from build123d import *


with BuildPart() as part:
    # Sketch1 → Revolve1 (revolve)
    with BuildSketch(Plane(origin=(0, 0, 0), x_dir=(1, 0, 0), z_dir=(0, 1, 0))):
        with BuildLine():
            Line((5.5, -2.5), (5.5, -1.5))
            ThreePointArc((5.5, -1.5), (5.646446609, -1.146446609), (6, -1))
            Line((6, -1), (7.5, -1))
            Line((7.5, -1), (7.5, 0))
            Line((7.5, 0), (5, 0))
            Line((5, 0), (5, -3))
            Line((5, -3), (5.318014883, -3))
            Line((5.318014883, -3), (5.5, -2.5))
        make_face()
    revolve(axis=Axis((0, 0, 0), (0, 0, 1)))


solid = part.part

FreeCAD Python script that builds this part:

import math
import FreeCAD as App
import Part
import Sketcher

V = App.Vector
Q = App.Units.Quantity

doc = App.newDocument("Part")
body = doc.addObject("PartDesign::Body", "Body")

# Sketch on XZ plane
sketch1 = body.newObject("Sketcher::SketchObject", "Sketch")
sketch1.AttachmentSupport = (doc.getObject("XZ_Plane"), [""])
sketch1.MapMode = "FlatFace"
sketch1.addGeometry([
    Part.LineSegment(V(5.5, 2.5, 0), V(5.5, 1.5, 0)),  # 0
    Part.ArcOfCircle(Part.Circle(V(6, 1.5, 0), V(0, 0, 1), 0.5), math.radians(180), math.radians(270)),  # 1
    Part.LineSegment(V(6, 1, 0), V(7.5, 1, 0)),  # 2
    Part.LineSegment(V(7.5, 1, 0), V(7.5, 0, 0)),  # 3
    Part.LineSegment(V(7.5, 0, 0), V(5, 0, 0)),  # 4
    Part.LineSegment(V(5, 0, 0), V(5, 3, 0)),  # 5
    Part.LineSegment(V(5, 3, 0), V(5.32, 3, 0)),  # 6
    Part.LineSegment(V(5.32, 3, 0), V(5.5, 2.5, 0)),  # 7
], False)
sketch1.addConstraint([
    Sketcher.Constraint("Tangent", 0, 2, 1, 1),
    Sketcher.Constraint("Tangent", 1, 2, 2, 1),
    Sketcher.Constraint("Coincident", 2, 2, 3, 1),
    Sketcher.Constraint("Coincident", 3, 2, 4, 1),
    Sketcher.Constraint("Coincident", 4, 2, 5, 1),
    Sketcher.Constraint("Coincident", 5, 2, 6, 1),
    Sketcher.Constraint("Coincident", 6, 2, 7, 1),
    Sketcher.Constraint("Coincident", 7, 2, 0, 1),
    Sketcher.Constraint("Vertical", 0),
    Sketcher.Constraint("Horizontal", 2),
    Sketcher.Constraint("Vertical", 3),
    Sketcher.Constraint("Horizontal", 4),
    Sketcher.Constraint("Vertical", 5),
    Sketcher.Constraint("Horizontal", 6),
    Sketcher.Constraint("PointOnObject", 3, 2, -1),
    Sketcher.Constraint("Equal", 0, 3),
    Sketcher.Constraint("Radius", 1, Q("0.5 mm")),
    Sketcher.Constraint("DistanceY", 0, 2, 0, 1, Q("1 mm")),
    Sketcher.Constraint("DistanceY", 5, 1, 5, 2, Q("3 mm")),
    Sketcher.Constraint("Angle", 7, Q("-70 deg")),
    Sketcher.Constraint("DistanceX", 2, 1, 2, 2, Q("1.5 mm")),
    Sketcher.Constraint("DistanceX", 4, 2, 4, 1, Q("2.5 mm")),
    Sketcher.Constraint("DistanceX", -1, 1, 1, 3, Q("6 mm")),
])
revolution = body.newObject("PartDesign::Revolution", "Revolution")
revolution.Profile = sketch1
revolution.ReferenceAxis = (sketch1, ["V_Axis"])
revolution.Angle = 360

doc.recompute()
